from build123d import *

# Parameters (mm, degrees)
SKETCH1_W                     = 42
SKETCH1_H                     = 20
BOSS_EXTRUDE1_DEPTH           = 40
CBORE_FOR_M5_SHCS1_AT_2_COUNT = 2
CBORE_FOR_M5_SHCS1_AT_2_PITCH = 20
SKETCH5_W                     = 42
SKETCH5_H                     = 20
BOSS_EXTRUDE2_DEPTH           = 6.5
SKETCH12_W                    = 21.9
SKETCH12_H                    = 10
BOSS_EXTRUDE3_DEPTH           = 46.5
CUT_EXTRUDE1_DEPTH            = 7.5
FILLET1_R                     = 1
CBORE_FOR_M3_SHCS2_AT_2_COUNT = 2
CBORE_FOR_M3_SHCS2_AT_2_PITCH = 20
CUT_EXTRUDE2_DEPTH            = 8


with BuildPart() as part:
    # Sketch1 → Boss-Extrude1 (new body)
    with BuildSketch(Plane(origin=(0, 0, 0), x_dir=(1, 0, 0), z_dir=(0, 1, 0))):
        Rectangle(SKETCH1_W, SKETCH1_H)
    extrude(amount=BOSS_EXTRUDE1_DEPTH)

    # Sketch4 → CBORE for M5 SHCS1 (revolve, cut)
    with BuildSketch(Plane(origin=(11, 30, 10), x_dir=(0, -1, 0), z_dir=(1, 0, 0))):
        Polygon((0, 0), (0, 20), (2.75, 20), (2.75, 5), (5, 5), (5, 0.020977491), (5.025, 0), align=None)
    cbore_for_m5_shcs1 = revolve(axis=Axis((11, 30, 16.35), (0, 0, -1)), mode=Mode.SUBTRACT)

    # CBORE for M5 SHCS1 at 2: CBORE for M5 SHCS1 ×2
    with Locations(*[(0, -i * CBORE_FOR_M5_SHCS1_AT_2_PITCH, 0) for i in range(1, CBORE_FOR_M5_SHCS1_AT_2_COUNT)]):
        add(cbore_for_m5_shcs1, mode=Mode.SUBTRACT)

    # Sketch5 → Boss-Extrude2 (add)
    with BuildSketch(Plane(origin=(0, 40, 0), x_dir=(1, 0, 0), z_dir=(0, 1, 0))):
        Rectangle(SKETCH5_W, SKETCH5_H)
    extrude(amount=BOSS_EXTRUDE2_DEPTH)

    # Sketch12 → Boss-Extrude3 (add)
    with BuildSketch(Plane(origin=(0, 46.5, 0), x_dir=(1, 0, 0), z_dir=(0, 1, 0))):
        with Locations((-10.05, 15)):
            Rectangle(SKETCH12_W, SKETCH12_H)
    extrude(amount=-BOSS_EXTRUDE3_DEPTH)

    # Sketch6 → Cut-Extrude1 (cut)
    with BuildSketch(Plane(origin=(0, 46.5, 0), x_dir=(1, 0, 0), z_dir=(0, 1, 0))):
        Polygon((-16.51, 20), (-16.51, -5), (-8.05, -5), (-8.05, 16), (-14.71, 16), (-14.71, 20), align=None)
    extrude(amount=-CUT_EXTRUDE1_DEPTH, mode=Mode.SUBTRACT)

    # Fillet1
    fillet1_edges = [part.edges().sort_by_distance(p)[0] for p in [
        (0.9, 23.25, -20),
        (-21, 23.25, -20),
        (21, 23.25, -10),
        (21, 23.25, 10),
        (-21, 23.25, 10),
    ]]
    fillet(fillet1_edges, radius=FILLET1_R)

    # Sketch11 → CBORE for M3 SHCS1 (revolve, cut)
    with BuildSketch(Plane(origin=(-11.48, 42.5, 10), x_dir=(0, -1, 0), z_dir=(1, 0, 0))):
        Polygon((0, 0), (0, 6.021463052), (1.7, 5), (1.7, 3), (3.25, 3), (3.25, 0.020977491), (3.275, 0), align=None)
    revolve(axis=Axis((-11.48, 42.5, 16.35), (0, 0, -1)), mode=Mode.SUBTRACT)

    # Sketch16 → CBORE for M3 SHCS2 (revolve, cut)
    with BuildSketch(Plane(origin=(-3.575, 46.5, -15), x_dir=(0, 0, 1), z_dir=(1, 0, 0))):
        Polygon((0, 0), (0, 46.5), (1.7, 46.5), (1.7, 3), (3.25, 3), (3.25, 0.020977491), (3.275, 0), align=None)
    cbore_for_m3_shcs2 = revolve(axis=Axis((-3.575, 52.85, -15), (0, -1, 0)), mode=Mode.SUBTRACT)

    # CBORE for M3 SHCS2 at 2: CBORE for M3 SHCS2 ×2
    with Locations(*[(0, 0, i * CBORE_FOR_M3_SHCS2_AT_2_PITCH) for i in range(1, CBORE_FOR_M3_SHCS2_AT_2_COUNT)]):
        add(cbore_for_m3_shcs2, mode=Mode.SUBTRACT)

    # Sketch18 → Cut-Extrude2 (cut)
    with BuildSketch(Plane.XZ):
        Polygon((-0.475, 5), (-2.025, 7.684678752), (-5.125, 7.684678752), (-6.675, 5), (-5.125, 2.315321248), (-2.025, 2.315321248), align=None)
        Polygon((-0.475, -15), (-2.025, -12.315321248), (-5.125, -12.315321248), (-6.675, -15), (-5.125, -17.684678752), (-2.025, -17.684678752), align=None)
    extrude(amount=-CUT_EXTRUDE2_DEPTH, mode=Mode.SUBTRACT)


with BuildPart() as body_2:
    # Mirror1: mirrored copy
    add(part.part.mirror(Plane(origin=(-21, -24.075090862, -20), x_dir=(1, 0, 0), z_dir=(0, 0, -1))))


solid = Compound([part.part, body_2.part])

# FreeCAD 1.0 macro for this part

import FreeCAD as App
import Part
import Sketcher
Q = App.Units.Quantity


def edges_at(feature, points):
    """Names of the edges that pass closest to the given points."""
    edges = feature.Shape.Edges
    near = lambda p: min(range(len(edges)), key=lambda i: edges[i].distToShape(Part.Vertex(*p))[0])
    return sorted({f"Edge{near(p) + 1}" for p in points})


def add_polygon(sketch, points):
    """Adds a closed chain of lines whose ends are joined by coincident constraints."""
    first, n = sketch.GeometryCount, len(points)
    for a, b in zip(points, points[1:] + points[:1]):
        sketch.addGeometry(Part.LineSegment(App.Vector(*a, 0), App.Vector(*b, 0)), False)
    for i in range(n):
        sketch.addConstraint(Sketcher.Constraint("Coincident", first + i, 2, first + (i + 1) % n, 1))

doc = App.newDocument("Part")
body = doc.addObject("PartDesign::Body", "Body")

# Sketch on XZ plane
sketch1 = doc.addObject("Sketcher::SketchObject", "Sketch")
body.addObject(sketch1)
sketch1.AttachmentSupport = (doc.XZ_Plane, [""])
sketch1.MapMode = "FlatFace"
add_polygon(sketch1, [(-21, -10), (-21, 10), (21, 10), (21, -10)])  # lines 0-3
sketch1.addConstraint([
    Sketcher.Constraint("Vertical", 0),
    Sketcher.Constraint("Horizontal", 1),
    Sketcher.Constraint("Vertical", 2),
    Sketcher.Constraint("Horizontal", 3),
    Sketcher.Constraint("Symmetric", 0, 2, 2, 2, -1, 1),
    Sketcher.Constraint("DistanceX", 1, 1, 1, 2, Q("42 mm")),
    Sketcher.Constraint("DistanceY", 0, 1, 0, 2, Q("20 mm")),
])
pad1 = doc.addObject("PartDesign::Pad", "Pad")
body.addObject(pad1)
pad1.Profile = sketch1
pad1.Length = 40
pad1.Reversed = True

# Sketch on YZ plane
sketch2 = doc.addObject("Sketcher::SketchObject", "Sketch001")
body.addObject(sketch2)
sketch2.AttachmentSupport = (doc.YZ_Plane, [""])
sketch2.MapMode = "FlatFace"
sketch2.AttachmentOffset = App.Placement(App.Vector(0, 0, 11), App.Rotation())
add_polygon(sketch2, [(30, -10), (30, 10), (24.975, 10), (25, 9.979), (25, 5), (27.25, 5), (27.25, -10)])  # lines 0-6
sketch2.addGeometry(Part.LineSegment(App.Vector(30, 10, 0), App.Vector(30, -10, 0)), True)  # axis
sketch2.addConstraint([
    Sketcher.Constraint("Vertical", 0),
    Sketcher.Constraint("Horizontal", 1),
    Sketcher.Constraint("Vertical", 3),
    Sketcher.Constraint("Horizontal", 4),
    Sketcher.Constraint("Vertical", 5),
    Sketcher.Constraint("Horizontal", 6),
    Sketcher.Constraint("Vertical", 7),
    Sketcher.Constraint("Coincident", 7, 1, 0, 2),
    Sketcher.Constraint("Horizontal", 5, 2, 7, 2),
    Sketcher.Constraint("DistanceY", 0, 1, 0, 2, Q("20 mm")),
    Sketcher.Constraint("DistanceY", 5, 2, 5, 1, Q("15 mm")),
    Sketcher.Constraint("Angle", 2, Q("-40 deg")),
    Sketcher.Constraint("DistanceX", -1, 1, 0, 2, Q("30 mm")),
    Sketcher.Constraint("DistanceY", -1, 1, 0, 2, Q("10 mm")),
    Sketcher.Constraint("DistanceX", -1, 1, 2, 2, Q("25 mm")),
    Sketcher.Constraint("DistanceX", 4, 1, 4, 2, Q("2.25 mm")),
    Sketcher.Constraint("DistanceX", 1, 2, 1, 1, Q("5.025 mm")),
])
groove = doc.addObject("PartDesign::Groove", "Groove")
body.addObject(groove)
groove.Profile = sketch2
groove.ReferenceAxis = (sketch2, ["Axis0"])
groove.Angle = 360
doc.recompute()

linearpattern = doc.addObject("PartDesign::LinearPattern", "LinearPattern")
body.addObject(linearpattern)
linearpattern.Originals = [groove]
linearpattern.Direction = (doc.Y_Axis, [""])
linearpattern.Mode = "offset"
linearpattern.Offset = 20
linearpattern.Occurrences = 2
linearpattern.Reversed = True
body.Tip = linearpattern

# Sketch on XZ plane
sketch3 = doc.addObject("Sketcher::SketchObject", "Sketch002")
body.addObject(sketch3)
sketch3.AttachmentSupport = (doc.XZ_Plane, [""])
sketch3.MapMode = "FlatFace"
sketch3.AttachmentOffset = App.Placement(App.Vector(0, 0, -40), App.Rotation())
add_polygon(sketch3, [(-21, -10), (-21, 10), (21, 10), (21, -10)])  # lines 0-3
sketch3.addConstraint([
    Sketcher.Constraint("Vertical", 0),
    Sketcher.Constraint("Horizontal", 1),
    Sketcher.Constraint("Vertical", 2),
    Sketcher.Constraint("Horizontal", 3),
    Sketcher.Constraint("Symmetric", 0, 2, 2, 2, -1, 1),
    Sketcher.Constraint("DistanceX", 1, 1, 1, 2, Q("42 mm")),
    Sketcher.Constraint("DistanceY", 0, 1, 0, 2, Q("20 mm")),
])
pad2 = doc.addObject("PartDesign::Pad", "Pad001")
body.addObject(pad2)
pad2.Profile = sketch3
pad2.Length = 6.5
pad2.Reversed = True

# Sketch on XZ plane
sketch4 = doc.addObject("Sketcher::SketchObject", "Sketch003")
body.addObject(sketch4)
sketch4.AttachmentSupport = (doc.XZ_Plane, [""])
sketch4.MapMode = "FlatFace"
sketch4.AttachmentOffset = App.Placement(App.Vector(0, 0, -46.5), App.Rotation())
add_polygon(sketch4, [(-21, -20), (-21, -10), (1, -10), (1, -20)])  # lines 0-3
sketch4.addConstraint([
    Sketcher.Constraint("Vertical", 0),
    Sketcher.Constraint("Horizontal", 1),
    Sketcher.Constraint("Vertical", 2),
    Sketcher.Constraint("Horizontal", 3),
    Sketcher.Constraint("DistanceY", 0, 1, 0, 2, Q("10 mm")),
    Sketcher.Constraint("DistanceX", 1, 1, 1, 2, Q("21.9 mm")),
    Sketcher.Constraint("DistanceX", 0, 2, -1, 1, Q("21 mm")),
    Sketcher.Constraint("DistanceY", 0, 2, -1, 1, Q("10 mm")),
])
pad3 = doc.addObject("PartDesign::Pad", "Pad002")
body.addObject(pad3)
pad3.Profile = sketch4
pad3.Length = 46.5

# Sketch on XZ plane
sketch5 = doc.addObject("Sketcher::SketchObject", "Sketch004")
body.addObject(sketch5)
sketch5.AttachmentSupport = (doc.XZ_Plane, [""])
sketch5.MapMode = "FlatFace"
sketch5.AttachmentOffset = App.Placement(App.Vector(0, 0, -46.5), App.Rotation())
add_polygon(sketch5, [(-16.5, -20), (-16.5, 5), (-8.1, 5), (-8.1, -16), (-14.7, -16), (-14.7, -20)])  # lines 0-5
sketch5.addConstraint([
    Sketcher.Constraint("Vertical", 0),
    Sketcher.Constraint("Horizontal", 1),
    Sketcher.Constraint("Vertical", 2),
    Sketcher.Constraint("Horizontal", 3),
    Sketcher.Constraint("Vertical", 4),
    Sketcher.Constraint("Horizontal", 5),
    Sketcher.Constraint("DistanceY", 0, 1, 0, 2, Q("25 mm")),
    Sketcher.Constraint("DistanceY", 2, 2, 2, 1, Q("21 mm")),
    Sketcher.Constraint("DistanceX", 5, 2, 5, 1, Q("1.8 mm")),
    Sketcher.Constraint("DistanceY", -1, 1, 0, 2, Q("5 mm")),
    Sketcher.Constraint("DistanceX", 1, 1, 1, 2, Q("8.46 mm")),
    Sketcher.Constraint("DistanceX", 0, 2, -1, 1, Q("16.51 mm")),
])
pocket1 = doc.addObject("PartDesign::Pocket", "Pocket")
body.addObject(pocket1)
pocket1.Profile = sketch5
pocket1.Length = 7.5
pocket1.Reversed = True
doc.recompute()

fillet = doc.addObject("PartDesign::Fillet", "Fillet")
body.addObject(fillet)
fillet.Base = (pocket1, edges_at(pocket1, [
    (0.9, 23.25, -20),
    (-21, 23.25, -20),
    (21, 23.25, -10),
    (21, 23.25, 10),
    (-21, 23.25, 10),
]))
fillet.Radius = 1

# Sketch on YZ plane
sketch6 = doc.addObject("Sketcher::SketchObject", "Sketch005")
body.addObject(sketch6)
sketch6.AttachmentSupport = (doc.YZ_Plane, [""])
sketch6.MapMode = "FlatFace"
sketch6.AttachmentOffset = App.Placement(App.Vector(0, 0, -11.48), App.Rotation())
add_polygon(sketch6, [(42.5, 3.979), (42.5, 10), (39.225, 10), (39.25, 9.979), (39.25, 7), (40.8, 7), (40.8, 5)])  # lines 0-6
sketch6.addGeometry(Part.LineSegment(App.Vector(42.5, 10, 0), App.Vector(42.5, 3.979, 0)), True)  # axis
sketch6.addConstraint([
    Sketcher.Constraint("Vertical", 0),
    Sketcher.Constraint("Horizontal", 1),
    Sketcher.Constraint("Vertical", 3),
    Sketcher.Constraint("Horizontal", 4),
    Sketcher.Constraint("Vertical", 5),
    Sketcher.Constraint("Vertical", 7),
    Sketcher.Constraint("Coincident", 7, 1, 0, 2),
    Sketcher.Constraint("Equal", 0, 7),
    Sketcher.Constraint("DistanceY", 5, 2, 5, 1, Q("2 mm")),
    Sketcher.Constraint("Angle", 2, Q("-40 deg")),
    Sketcher.Constraint("Angle", 6, Q("-31 deg")),
    Sketcher.Constraint("DistanceY", -1, 1, 0, 2, Q("10 mm")),
    Sketcher.Constraint("DistanceY", -1, 1, 3, 2, Q("7 mm")),
    Sketcher.Constraint("DistanceX", 4, 1, 4, 2, Q("1.55 mm")),
    Sketcher.Constraint("DistanceX", -1, 1, 0, 2, Q("42.5 mm")),
    Sketcher.Constraint("DistanceX", -1, 1, 4, 2, Q("40.8 mm")),
    Sketcher.Constraint("DistanceX", 1, 2, 1, 1, Q("3.275 mm")),
])
groove2 = doc.addObject("PartDesign::Groove", "Groove001")
body.addObject(groove2)
groove2.Profile = sketch6
groove2.ReferenceAxis = (sketch6, ["Axis0"])
groove2.Angle = 360

# Sketch on YZ plane
sketch7 = doc.addObject("Sketcher::SketchObject", "Sketch006")
body.addObject(sketch7)
sketch7.AttachmentSupport = (doc.YZ_Plane, [""])
sketch7.MapMode = "FlatFace"
sketch7.AttachmentOffset = App.Placement(App.Vector(0, 0, -3.575), App.Rotation())
add_polygon(sketch7, [(0, -15), (46.5, -15), (46.5, -11.725), (46.479023, -11.75), (43.5, -11.75), (43.5, -13.3), (0, -13.3)])  # lines 0-6
sketch7.addGeometry(Part.LineSegment(App.Vector(46.5, -15, 0), App.Vector(0, -15, 0)), True)  # axis
sketch7.addConstraint([
    Sketcher.Constraint("Horizontal", 0),
    Sketcher.Constraint("Vertical", 1),
    Sketcher.Constraint("Horizontal", 3),
    Sketcher.Constraint("Vertical", 4),
    Sketcher.Constraint("Horizontal", 5),
    Sketcher.Constraint("Vertical", 6),
    Sketcher.Constraint("Horizontal", 7),
    Sketcher.Constraint("Coincident", 7, 1, 0, 2),
    Sketcher.Constraint("PointOnObject", 5, 2, -2),
    Sketcher.Constraint("PointOnObject", 7, 2, -2),
    Sketcher.Constraint("Angle", 2, Q("-130 deg")),
    Sketcher.Constraint("DistanceX", 0, 1, 0, 2, Q("46.5 mm")),
    Sketcher.Constraint("DistanceX", 5, 2, 5, 1, Q("43.5 mm")),
    Sketcher.Constraint("DistanceY", 6, 2, 6, 1, Q("1.7 mm")),
    Sketcher.Constraint("DistanceY", 0, 2, -1, 1, Q("15 mm")),
    Sketcher.Constraint("DistanceY", 4, 2, 4, 1, Q("1.55 mm")),
    Sketcher.Constraint("DistanceY", 1, 1, 1, 2, Q("3.275 mm")),
])
groove3 = doc.addObject("PartDesign::Groove", "Groove002")
body.addObject(groove3)
groove3.Profile = sketch7
groove3.ReferenceAxis = (sketch7, ["Axis0"])
groove3.Angle = 360
doc.recompute()

linearpattern2 = doc.addObject("PartDesign::LinearPattern", "LinearPattern001")
body.addObject(linearpattern2)
linearpattern2.Originals = [groove3]
linearpattern2.Direction = (doc.Z_Axis, [""])
linearpattern2.Mode = "offset"
linearpattern2.Offset = 20
linearpattern2.Occurrences = 2
body.Tip = linearpattern2

# Sketch on XZ plane
sketch8 = doc.addObject("Sketcher::SketchObject", "Sketch007")
body.addObject(sketch8)
sketch8.AttachmentSupport = (doc.XZ_Plane, [""])
sketch8.MapMode = "FlatFace"
add_polygon(sketch8, [(-0.5, 5), (-2, 7.7), (-5.1, 7.7), (-6.7, 5), (-5.1, 2.3), (-2, 2.3)])  # lines 0-5
add_polygon(sketch8, [(-0.5, -15), (-2, -12.3), (-5.1, -12.3), (-6.7, -15), (-5.1, -17.7), (-2, -17.7)])  # lines 6-11
sketch8.addConstraint([
    Sketcher.Constraint("Horizontal", 1),
    Sketcher.Constraint("Horizontal", 4),
    Sketcher.Constraint("Horizontal", 7),
    Sketcher.Constraint("Horizontal", 10),
    Sketcher.Constraint("Parallel", 0, 3),
    Sketcher.Constraint("Parallel", 2, 5),
    Sketcher.Constraint("Parallel", 3, 6),
    Sketcher.Constraint("Parallel", 5, 8),
    Sketcher.Constraint("Parallel", 6, 9),
    Sketcher.Constraint("Parallel", 8, 11),
    Sketcher.Constraint("Horizontal", 2, 2, 5, 2),
    Sketcher.Constraint("Horizontal", 8, 2, 11, 2),
    Sketcher.Constraint("Vertical", 1, 2, 3, 2),
    Sketcher.Constraint("Vertical", 0, 2, 4, 2),
    Sketcher.Constraint("Vertical", 4, 2, 6, 2),
    Sketcher.Constraint("Vertical", 3, 2, 7, 2),
    Sketcher.Constraint("Vertical", 2, 2, 8, 2),
    Sketcher.Constraint("Vertical", 7, 2, 9, 2),
    Sketcher.Constraint("Angle", 0, Q("120 deg")),
    Sketcher.Constraint("DistanceX", 1, 2, 1, 1, Q("3.1 mm")),
    Sketcher.Constraint("DistanceY", -1, 1, 2, 2, Q("5 mm")),
    Sketcher.Constraint("DistanceY", 8, 2, -1, 1, Q("15 mm")),
    Sketcher.Constraint("Distance", 0, Q("3.1 mm")),
    Sketcher.Constraint("DistanceX", 0, 2, -1, 1, Q("2.025 mm")),
])
pocket2 = doc.addObject("PartDesign::Pocket", "Pocket001")
body.addObject(pocket2)
pocket2.Profile = sketch8
pocket2.Length = 8
body2 = doc.addObject("PartDesign::Body", "Body001")
doc.recompute()

mirroring = doc.addObject("Part::Mirroring", "Mirroring")
mirroring.Source = body
mirroring.Base = App.Vector(-21, -24.075091, -20)
mirroring.Normal = App.Vector(0, 0, -1)
body2.BaseFeature = mirroring
doc.recompute()
mirroring.Visibility = False

doc.recompute()
